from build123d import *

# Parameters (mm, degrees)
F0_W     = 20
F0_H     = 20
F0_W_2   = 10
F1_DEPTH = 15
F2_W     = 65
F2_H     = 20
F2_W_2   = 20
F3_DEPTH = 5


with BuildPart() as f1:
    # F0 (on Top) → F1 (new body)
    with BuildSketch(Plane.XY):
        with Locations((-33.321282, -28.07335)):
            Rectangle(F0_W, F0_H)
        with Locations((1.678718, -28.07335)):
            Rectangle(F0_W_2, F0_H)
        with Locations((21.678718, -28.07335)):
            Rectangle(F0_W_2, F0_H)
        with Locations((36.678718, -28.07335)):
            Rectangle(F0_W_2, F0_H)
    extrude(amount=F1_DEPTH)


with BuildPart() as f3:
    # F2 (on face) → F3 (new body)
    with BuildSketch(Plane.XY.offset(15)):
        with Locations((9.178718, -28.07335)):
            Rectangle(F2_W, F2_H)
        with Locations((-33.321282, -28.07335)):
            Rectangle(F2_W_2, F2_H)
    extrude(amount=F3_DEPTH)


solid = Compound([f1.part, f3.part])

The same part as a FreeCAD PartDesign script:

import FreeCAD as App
import Part
import Sketcher
Q = App.Units.Quantity


def add_polygon(sketch, points):
    """Adds a closed chain of lines whose ends are joined by coincident constraints."""
    first, n = sketch.GeometryCount, len(points)
    for a, b in zip(points, points[1:] + points[:1]):
        sketch.addGeometry(Part.LineSegment(App.Vector(*a, 0), App.Vector(*b, 0)), False)
    for i in range(n):
        sketch.addConstraint(Sketcher.Constraint("Coincident", first + i, 2, first + (i + 1) % n, 1))

doc = App.newDocument("Part")
body = doc.addObject("PartDesign::Body", "Body")
body.AllowCompound = True

# Sketch on XY plane
sketch1 = body.newObject("Sketcher::SketchObject", "Sketch")
sketch1.AttachmentSupport = (doc.getObject("XY_Plane"), [""])
sketch1.MapMode = "FlatFace"
add_polygon(sketch1, [(-43, -18), (-43, -38), (-23, -38), (-23, -18)])  # lines 0-3
add_polygon(sketch1, [(-3, -18), (-3, -38), (7, -38), (7, -18)])  # lines 4-7
add_polygon(sketch1, [(17, -18), (17, -38), (27, -38), (27, -18)])  # lines 8-11
add_polygon(sketch1, [(32, -18), (32, -38), (42, -38), (42, -18)])  # lines 12-15
sketch1.addConstraint(Sketcher.Constraint("Vertical", 0))
sketch1.addConstraint(Sketcher.Constraint("Horizontal", 1))
sketch1.addConstraint(Sketcher.Constraint("Vertical", 2))
sketch1.addConstraint(Sketcher.Constraint("Horizontal", 3))
sketch1.addConstraint(Sketcher.Constraint("Vertical", 4))
sketch1.addConstraint(Sketcher.Constraint("Horizontal", 5))
sketch1.addConstraint(Sketcher.Constraint("Vertical", 6))
sketch1.addConstraint(Sketcher.Constraint("Horizontal", 7))
sketch1.addConstraint(Sketcher.Constraint("Vertical", 8))
sketch1.addConstraint(Sketcher.Constraint("Horizontal", 9))
sketch1.addConstraint(Sketcher.Constraint("Vertical", 10))
sketch1.addConstraint(Sketcher.Constraint("Horizontal", 11))
sketch1.addConstraint(Sketcher.Constraint("Vertical", 12))
sketch1.addConstraint(Sketcher.Constraint("Horizontal", 13))
sketch1.addConstraint(Sketcher.Constraint("Vertical", 14))
sketch1.addConstraint(Sketcher.Constraint("Horizontal", 15))
sketch1.addConstraint(Sketcher.Constraint("Horizontal", 1, 2, 4, 2))
sketch1.addConstraint(Sketcher.Constraint("Horizontal", 3, 2, 6, 2))
sketch1.addConstraint(Sketcher.Constraint("Horizontal", 5, 2, 8, 2))
sketch1.addConstraint(Sketcher.Constraint("Horizontal", 7, 2, 10, 2))
sketch1.addConstraint(Sketcher.Constraint("Horizontal", 9, 2, 12, 2))
sketch1.addConstraint(Sketcher.Constraint("Horizontal", 11, 2, 14, 2))
sketch1.addConstraint(Sketcher.Constraint("Equal", 7, 9))
sketch1.addConstraint(Sketcher.Constraint("Equal", 11, 13))
sketch1.addConstraint(Sketcher.Constraint("Equal", 3, 0))
sketch1.addConstraint(Sketcher.Constraint("DistanceX", 1, 1, 1, 2, Q("20 mm")))
sketch1.addConstraint(Sketcher.Constraint("DistanceX", 5, 1, 5, 2, Q("10 mm")))
sketch1.addConstraint(Sketcher.Constraint("DistanceX", 1, 2, 4, 2, Q("20 mm")))
sketch1.addConstraint(Sketcher.Constraint("DistanceX", 5, 2, 8, 2, Q("10 mm")))
sketch1.addConstraint(Sketcher.Constraint("DistanceX", 9, 2, 12, 2, Q("5 mm")))
sketch1.addConstraint(Sketcher.Constraint("DistanceX", 0, 2, -1, 1, Q("43.321282 mm")))
sketch1.addConstraint(Sketcher.Constraint("DistanceY", 0, 2, -1, 1, Q("38.07335 mm")))
pad1 = body.newObject("PartDesign::Pad", "Pad")
pad1.Profile = sketch1
pad1.Length = 15
body2 = doc.addObject("PartDesign::Body", "Body001")

# Sketch on XY plane
sketch2 = body2.newObject("Sketcher::SketchObject", "Sketch001")
sketch2.AttachmentSupport = (doc.getObject("XY_Plane001"), [""])
sketch2.MapMode = "FlatFace"
sketch2.AttachmentOffset = App.Placement(App.Vector(0, 0, 15), App.Rotation())
add_polygon(sketch2, [(42, -38), (42, -18), (-43, -18), (-43, -38)])  # lines 0-3
sketch2.addConstraint(Sketcher.Constraint("Vertical", 0))
sketch2.addConstraint(Sketcher.Constraint("Horizontal", 1))
sketch2.addConstraint(Sketcher.Constraint("Vertical", 2))
sketch2.addConstraint(Sketcher.Constraint("Horizontal", 3))
sketch2.addConstraint(Sketcher.Constraint("DistanceX", 1, 2, 1, 1, Q("85 mm")))
sketch2.addConstraint(Sketcher.Constraint("DistanceY", 0, 1, 0, 2, Q("20 mm")))
sketch2.addConstraint(Sketcher.Constraint("DistanceX", -1, 1, 0, 2, Q("41.678718 mm")))
sketch2.addConstraint(Sketcher.Constraint("DistanceY", 0, 2, -1, 1, Q("18.07335 mm")))
pad2 = body2.newObject("PartDesign::Pad", "Pad001")
pad2.Profile = sketch2
pad2.Length = 5

doc.recompute()
